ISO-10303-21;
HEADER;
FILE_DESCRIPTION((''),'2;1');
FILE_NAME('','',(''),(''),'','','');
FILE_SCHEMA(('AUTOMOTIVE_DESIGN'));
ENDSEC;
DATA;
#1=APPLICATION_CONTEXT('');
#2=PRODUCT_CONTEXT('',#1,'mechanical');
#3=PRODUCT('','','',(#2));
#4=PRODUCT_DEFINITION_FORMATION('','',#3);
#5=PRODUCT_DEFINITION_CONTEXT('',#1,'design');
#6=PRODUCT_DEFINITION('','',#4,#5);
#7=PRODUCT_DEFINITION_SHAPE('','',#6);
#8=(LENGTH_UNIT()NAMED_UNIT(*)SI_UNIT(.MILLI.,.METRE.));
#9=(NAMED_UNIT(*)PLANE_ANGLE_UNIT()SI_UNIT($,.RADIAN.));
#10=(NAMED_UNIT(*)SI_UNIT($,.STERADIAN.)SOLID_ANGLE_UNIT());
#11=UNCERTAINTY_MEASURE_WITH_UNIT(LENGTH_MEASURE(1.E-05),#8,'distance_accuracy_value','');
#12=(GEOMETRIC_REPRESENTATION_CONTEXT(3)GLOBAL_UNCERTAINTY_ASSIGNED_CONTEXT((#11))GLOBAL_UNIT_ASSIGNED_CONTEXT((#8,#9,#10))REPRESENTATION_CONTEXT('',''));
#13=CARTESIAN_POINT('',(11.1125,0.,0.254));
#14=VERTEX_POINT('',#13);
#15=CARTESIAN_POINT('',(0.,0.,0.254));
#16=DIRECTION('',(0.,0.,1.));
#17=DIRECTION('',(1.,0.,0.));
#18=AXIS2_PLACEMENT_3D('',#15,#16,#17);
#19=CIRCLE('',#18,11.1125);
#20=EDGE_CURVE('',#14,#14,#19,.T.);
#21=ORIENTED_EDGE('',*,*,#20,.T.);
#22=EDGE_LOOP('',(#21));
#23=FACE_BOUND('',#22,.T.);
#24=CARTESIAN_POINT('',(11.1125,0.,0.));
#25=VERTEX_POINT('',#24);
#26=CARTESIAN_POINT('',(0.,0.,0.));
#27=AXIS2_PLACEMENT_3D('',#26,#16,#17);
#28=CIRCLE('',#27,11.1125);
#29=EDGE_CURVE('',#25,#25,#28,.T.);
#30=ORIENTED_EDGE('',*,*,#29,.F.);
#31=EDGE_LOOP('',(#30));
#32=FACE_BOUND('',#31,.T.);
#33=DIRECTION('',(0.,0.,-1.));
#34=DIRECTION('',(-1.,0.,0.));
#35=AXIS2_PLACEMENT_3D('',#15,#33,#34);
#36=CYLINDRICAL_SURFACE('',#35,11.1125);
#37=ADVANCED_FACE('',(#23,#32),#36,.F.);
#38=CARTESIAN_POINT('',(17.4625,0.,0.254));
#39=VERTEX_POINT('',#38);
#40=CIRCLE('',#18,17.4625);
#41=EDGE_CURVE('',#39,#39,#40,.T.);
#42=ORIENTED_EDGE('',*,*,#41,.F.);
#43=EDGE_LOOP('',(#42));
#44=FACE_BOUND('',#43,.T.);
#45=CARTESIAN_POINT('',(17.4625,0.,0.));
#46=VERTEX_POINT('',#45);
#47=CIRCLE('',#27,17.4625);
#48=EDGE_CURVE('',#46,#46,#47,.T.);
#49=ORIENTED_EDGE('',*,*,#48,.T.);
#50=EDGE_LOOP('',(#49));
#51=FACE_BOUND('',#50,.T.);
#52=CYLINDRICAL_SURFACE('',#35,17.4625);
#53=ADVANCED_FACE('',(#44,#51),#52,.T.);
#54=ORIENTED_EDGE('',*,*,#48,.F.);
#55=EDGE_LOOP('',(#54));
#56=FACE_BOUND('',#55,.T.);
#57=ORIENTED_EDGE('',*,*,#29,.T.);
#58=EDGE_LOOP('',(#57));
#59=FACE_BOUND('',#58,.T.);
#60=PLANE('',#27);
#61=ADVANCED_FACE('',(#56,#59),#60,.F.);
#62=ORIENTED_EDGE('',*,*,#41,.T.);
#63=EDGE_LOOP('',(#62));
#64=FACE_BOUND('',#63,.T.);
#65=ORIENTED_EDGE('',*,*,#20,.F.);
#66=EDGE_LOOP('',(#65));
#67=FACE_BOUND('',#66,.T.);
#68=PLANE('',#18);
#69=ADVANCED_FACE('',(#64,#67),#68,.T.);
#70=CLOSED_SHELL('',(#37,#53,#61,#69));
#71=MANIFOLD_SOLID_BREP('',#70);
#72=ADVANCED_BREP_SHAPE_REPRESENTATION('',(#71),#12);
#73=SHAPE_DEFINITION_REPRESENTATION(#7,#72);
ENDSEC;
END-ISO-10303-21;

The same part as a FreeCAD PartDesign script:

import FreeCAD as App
import Part
import Sketcher

V = App.Vector
Q = App.Units.Quantity

doc = App.newDocument("Part")
params = doc.addObject("Spreadsheet::Sheet", "Params")
for row, (alias, value) in enumerate([
    ("sketch1_diameter", "1.375 in"),
    ("sketch1_diameter2", "0.875 in"),
    ("pad1_length", "0.01 in"),
], start=1):
    params.set(f"A{row}", alias)
    params.set(f"B{row}", "=" + value)
    params.setAlias(f"B{row}", alias)

body = doc.addObject("PartDesign::Body", "Body")

# Sketch on XY plane
sketch1 = body.newObject("Sketcher::SketchObject", "Sketch")
sketch1.AttachmentSupport = (doc.getObject("XY_Plane"), [""])
sketch1.MapMode = "FlatFace"
sketch1.addGeometry(Part.Circle(V(0, 0, 0), V(0, 0, 1), 17.4625), False)
sketch1.addGeometry(Part.Circle(V(0, 0, 0), V(0, 0, 1), 11.1125), False)
sketch1.addConstraint(Sketcher.Constraint("Coincident", 0, 3, -1, 1))
sketch1.addConstraint(Sketcher.Constraint("Coincident", 1, 3, -1, 1))
sketch1.addConstraint(Sketcher.Constraint("Diameter", 0, Q("1.375 in")))
sketch1.addConstraint(Sketcher.Constraint("Diameter", 1, Q("0.875 in")))
sketch1.setExpression("Constraints[2]", "Params.sketch1_diameter")
sketch1.setExpression("Constraints[3]", "Params.sketch1_diameter2")
pad1 = body.newObject("PartDesign::Pad", "Pad")
pad1.Profile = sketch1
pad1.setExpression("Length", "Params.pad1_length")

doc.recompute()
